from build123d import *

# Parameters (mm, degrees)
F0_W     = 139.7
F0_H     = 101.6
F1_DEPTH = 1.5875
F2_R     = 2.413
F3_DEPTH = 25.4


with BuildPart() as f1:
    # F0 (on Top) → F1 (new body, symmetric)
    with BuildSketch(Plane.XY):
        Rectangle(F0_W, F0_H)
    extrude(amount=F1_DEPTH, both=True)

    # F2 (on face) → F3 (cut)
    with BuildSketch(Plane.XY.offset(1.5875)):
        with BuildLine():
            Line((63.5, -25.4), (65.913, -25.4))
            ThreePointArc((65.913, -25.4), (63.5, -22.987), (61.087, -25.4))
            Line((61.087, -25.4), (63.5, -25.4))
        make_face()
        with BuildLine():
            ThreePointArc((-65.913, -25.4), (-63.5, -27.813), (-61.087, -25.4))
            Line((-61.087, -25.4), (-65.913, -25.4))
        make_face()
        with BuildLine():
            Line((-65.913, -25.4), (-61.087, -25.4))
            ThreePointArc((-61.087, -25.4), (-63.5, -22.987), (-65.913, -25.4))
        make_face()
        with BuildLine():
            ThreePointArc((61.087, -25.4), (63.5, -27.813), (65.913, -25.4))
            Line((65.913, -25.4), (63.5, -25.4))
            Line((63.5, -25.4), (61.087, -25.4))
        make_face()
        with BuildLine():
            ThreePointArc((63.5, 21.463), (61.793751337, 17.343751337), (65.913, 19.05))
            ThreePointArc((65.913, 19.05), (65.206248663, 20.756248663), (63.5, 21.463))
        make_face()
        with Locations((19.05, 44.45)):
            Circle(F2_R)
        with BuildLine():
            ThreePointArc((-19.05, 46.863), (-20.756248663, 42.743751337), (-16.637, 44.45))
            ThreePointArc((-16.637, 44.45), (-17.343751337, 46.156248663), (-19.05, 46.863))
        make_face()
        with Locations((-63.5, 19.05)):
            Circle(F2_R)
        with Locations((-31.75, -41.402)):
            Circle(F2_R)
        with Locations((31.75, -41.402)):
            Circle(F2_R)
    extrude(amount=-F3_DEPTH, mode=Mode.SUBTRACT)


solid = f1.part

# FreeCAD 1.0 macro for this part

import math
import FreeCAD as App
import Part
import Sketcher
from FreeCAD import Vector
Q = App.Units.Quantity

doc = App.newDocument("Part")
body = doc.addObject("PartDesign::Body", "Body")

sketch1 = doc.addObject("Sketcher::SketchObject", "Sketch")
body.addObject(sketch1)
sketch1.AttachmentSupport = (doc.XY_Plane, [""])
sketch1.MapMode = "FlatFace"
sketch1.addGeometry([
    Part.LineSegment(Vector(-70, 51, 0), Vector(-70, -51, 0)),
    Part.LineSegment(Vector(-70, -51, 0), Vector(70, -51, 0)),
    Part.LineSegment(Vector(70, -51, 0), Vector(70, 51, 0)),
    Part.LineSegment(Vector(70, 51, 0), Vector(-70, 51, 0)),
], False)
sketch1.addConstraint([
    Sketcher.Constraint("Coincident", 0, 2, 1, 1),
    Sketcher.Constraint("Coincident", 1, 2, 2, 1),
    Sketcher.Constraint("Coincident", 2, 2, 3, 1),
    Sketcher.Constraint("Coincident", 3, 2, 0, 1),
    Sketcher.Constraint("Vertical", 0),
    Sketcher.Constraint("Horizontal", 1),
    Sketcher.Constraint("Vertical", 2),
    Sketcher.Constraint("Horizontal", 3),
    Sketcher.Constraint("Symmetric", 0, 2, 2, 2, -1, 1),
    Sketcher.Constraint("DistanceY", 0, 2, 0, 1, Q("4 in")),
    Sketcher.Constraint("DistanceX", 1, 1, 1, 2, Q("5.5 in")),
])
pad1 = doc.addObject("PartDesign::Pad", "Pad")
body.addObject(pad1)
pad1.Profile = sketch1
pad1.Length = Q("0.125 in")
pad1.Midplane = True

sketch2 = doc.addObject("Sketcher::SketchObject", "Sketch001")
body.addObject(sketch2)
sketch2.AttachmentSupport = (doc.XY_Plane, [""])
sketch2.MapMode = "FlatFace"
sketch2.AttachmentOffset = App.Placement(Vector(0, 0, 0.0625 * 25.4), App.Rotation())
sketch2.addGeometry([
    Part.Circle(Vector(63.5, -25.4, 0), Vector(0, 0, 1), 2.4),
    Part.Circle(Vector(-63.5, -25.4, 0), Vector(0, 0, 1), 2.4),
    Part.ArcOfCircle(Part.Circle(Vector(63.5, 19.1, 0), Vector(0, 0, 1), 2.4), math.radians(90), math.radians(360)),
    Part.ArcOfCircle(Part.Circle(Vector(63.5, 19.1, 0), Vector(0, 0, 1), 2.4), math.radians(0), math.radians(90)),
    Part.Circle(Vector(19.1, 44.5, 0), Vector(0, 0, 1), 2.4),
    Part.ArcOfCircle(Part.Circle(Vector(-19.1, 44.5, 0), Vector(0, 0, 1), 2.4), math.radians(90), math.radians(360)),
    Part.ArcOfCircle(Part.Circle(Vector(-19.1, 44.5, 0), Vector(0, 0, 1), 2.4), math.radians(0), math.radians(90)),
    Part.Circle(Vector(-63.5, 19.1, 0), Vector(0, 0, 1), 2.4),
    Part.Circle(Vector(-31.8, -41.4, 0), Vector(0, 0, 1), 2.4),
    Part.Circle(Vector(31.8, -41.4, 0), Vector(0, 0, 1), 2.4),
], False)
sketch2.addConstraint([
    Sketcher.Constraint("Tangent", 2, 1, 3, 2),
    Sketcher.Constraint("Coincident", 3, 1, 2, 2),
    Sketcher.Constraint("Tangent", 5, 1, 6, 2),
    Sketcher.Constraint("Coincident", 6, 1, 5, 2),
    Sketcher.Constraint("Equal", 0, 1),
    Sketcher.Constraint("Equal", 1, 2),
    Sketcher.Constraint("Equal", 3, 4),
    Sketcher.Constraint("Equal", 4, 5),
    Sketcher.Constraint("Equal", 6, 7),
    Sketcher.Constraint("Equal", 7, 8),
    Sketcher.Constraint("Equal", 8, 9),
    Sketcher.Constraint("Symmetric", 0, 3, 1, 3, -2),
    Sketcher.Constraint("Symmetric", 4, 3, 5, 3, -2),
    Sketcher.Constraint("Symmetric", 2, 3, 7, 3, -2),
    Sketcher.Constraint("Symmetric", 8, 3, 9, 3, -2),
    Sketcher.Constraint("Horizontal", 7, 3, 3, 1),
    Sketcher.Constraint("Horizontal", 5, 3, 6, 1),
    Sketcher.Constraint("Vertical", 0, 3, 2, 3),
    Sketcher.Constraint("Vertical", 3, 3, 2, 1),
    Sketcher.Constraint("Vertical", 6, 3, 5, 1),
    Sketcher.Constraint("Diameter", 0, Q("0.19 in")),
    Sketcher.Constraint("DistanceY", 0, 3, -1, 1, Q("1 in")),
    Sketcher.Constraint("DistanceX", 1, 3, 0, 3, Q("5 in")),
    Sketcher.Constraint("DistanceY", 2, 3, 4, 3, Q("1 in")),
    Sketcher.Constraint("DistanceX", 5, 3, 4, 3, Q("1.5 in")),
    Sketcher.Constraint("DistanceX", 8, 3, 5, 3, Q("0.5 in")),
    Sketcher.Constraint("DistanceY", -1, 1, 2, 3, Q("0.75 in")),
    Sketcher.Constraint("DistanceY", 8, 3, -1, 1, Q("1.63 in")),
])
pocket1 = doc.addObject("PartDesign::Pocket", "Pocket")
body.addObject(pocket1)
pocket1.Profile = sketch2
pocket1.Length = Q("1 in")

doc.recompute()
